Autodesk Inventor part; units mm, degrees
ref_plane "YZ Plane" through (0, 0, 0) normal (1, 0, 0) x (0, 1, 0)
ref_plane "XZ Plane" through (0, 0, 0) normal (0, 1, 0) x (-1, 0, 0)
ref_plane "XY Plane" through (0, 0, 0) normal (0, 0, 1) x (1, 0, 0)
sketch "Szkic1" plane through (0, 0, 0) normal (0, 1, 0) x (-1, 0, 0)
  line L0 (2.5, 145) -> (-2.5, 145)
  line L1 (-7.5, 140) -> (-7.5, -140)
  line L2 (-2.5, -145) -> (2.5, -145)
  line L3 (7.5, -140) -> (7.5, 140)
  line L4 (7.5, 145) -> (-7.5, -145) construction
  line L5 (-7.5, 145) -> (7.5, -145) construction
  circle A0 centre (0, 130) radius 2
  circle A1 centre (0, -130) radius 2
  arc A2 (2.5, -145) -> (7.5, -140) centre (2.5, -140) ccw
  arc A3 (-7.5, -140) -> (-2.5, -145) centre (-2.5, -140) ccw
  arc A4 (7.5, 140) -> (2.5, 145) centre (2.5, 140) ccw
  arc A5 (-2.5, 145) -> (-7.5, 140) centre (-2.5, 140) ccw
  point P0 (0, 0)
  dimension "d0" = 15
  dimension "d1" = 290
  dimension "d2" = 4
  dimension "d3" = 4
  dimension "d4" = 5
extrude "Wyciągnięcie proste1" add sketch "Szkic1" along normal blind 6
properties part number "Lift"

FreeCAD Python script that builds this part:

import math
import FreeCAD as App
import Part
import Sketcher
from FreeCAD import Vector
Q = App.Units.Quantity

doc = App.newDocument("Part")
body = doc.addObject("PartDesign::Body", "Body")

sketch1 = doc.addObject("Sketcher::SketchObject", "Sketch")
body.addObject(sketch1)
sketch1.AttachmentSupport = (doc.XZ_Plane, [""])
sketch1.MapMode = "FlatFace"
sketch1.addGeometry([
    Part.ArcOfCircle(Part.Circle(Vector(-2.5, 140, 0), Vector(0, 0, 1), 5), math.radians(90), math.radians(180)),
    Part.LineSegment(Vector(-2.5, 145, 0), Vector(2.5, 145, 0)),
    Part.ArcOfCircle(Part.Circle(Vector(2.5, 140, 0), Vector(0, 0, 1), 5), math.radians(0), math.radians(90)),
    Part.LineSegment(Vector(7.5, 140, 0), Vector(7.5, -140, 0)),
    Part.ArcOfCircle(Part.Circle(Vector(2.5, -140, 0), Vector(0, 0, 1), 5), math.radians(-90), math.radians(0)),
    Part.LineSegment(Vector(2.5, -145, 0), Vector(-2.5, -145, 0)),
    Part.ArcOfCircle(Part.Circle(Vector(-2.5, -140, 0), Vector(0, 0, 1), 5), math.radians(180), math.radians(270)),
    Part.LineSegment(Vector(-7.5, -140, 0), Vector(-7.5, 140, 0)),
    Part.Circle(Vector(0, -130, 0), Vector(0, 0, 1), 2),
    Part.Circle(Vector(0, 130, 0), Vector(0, 0, 1), 2),
], False)
sketch1.addConstraint([
    Sketcher.Constraint("Tangent", 0, 1, 1, 1),
    Sketcher.Constraint("Tangent", 1, 2, 2, 2),
    Sketcher.Constraint("Tangent", 2, 1, 3, 1),
    Sketcher.Constraint("Tangent", 3, 2, 4, 2),
    Sketcher.Constraint("Tangent", 4, 1, 5, 1),
    Sketcher.Constraint("Tangent", 5, 2, 6, 2),
    Sketcher.Constraint("Tangent", 6, 1, 7, 1),
    Sketcher.Constraint("Tangent", 7, 2, 0, 2),
    Sketcher.Constraint("Horizontal", 1),
    Sketcher.Constraint("Vertical", 3),
    Sketcher.Constraint("Horizontal", 5),
    Sketcher.Constraint("Vertical", 7),
    Sketcher.Constraint("Equal", 0, 2),
    Sketcher.Constraint("Equal", 2, 4),
    Sketcher.Constraint("Equal", 4, 6),
    Sketcher.Constraint("Equal", 8, 9),
    Sketcher.Constraint("Symmetric", 0, 3, 4, 3, -1, 1),
    Sketcher.Constraint("Symmetric", 8, 3, 9, 3, -1, 1),
    Sketcher.Constraint("PointOnObject", 8, 3, -2),
    Sketcher.Constraint("Diameter", 8, Q("4 mm")),
    Sketcher.Constraint("Radius", 0, Q("5 mm")),
    Sketcher.Constraint("DistanceX", 1, 1, 1, 2, Q("5 mm")),
    Sketcher.Constraint("DistanceY", 9, 3, 0, 1, Q("15 mm")),
    Sketcher.Constraint("DistanceY", 3, 2, 3, 1, Q("280 mm")),
])
pad1 = doc.addObject("PartDesign::Pad", "Pad")
body.addObject(pad1)
pad1.Profile = sketch1
pad1.Length = 6
pad1.Reversed = True

doc.recompute()
